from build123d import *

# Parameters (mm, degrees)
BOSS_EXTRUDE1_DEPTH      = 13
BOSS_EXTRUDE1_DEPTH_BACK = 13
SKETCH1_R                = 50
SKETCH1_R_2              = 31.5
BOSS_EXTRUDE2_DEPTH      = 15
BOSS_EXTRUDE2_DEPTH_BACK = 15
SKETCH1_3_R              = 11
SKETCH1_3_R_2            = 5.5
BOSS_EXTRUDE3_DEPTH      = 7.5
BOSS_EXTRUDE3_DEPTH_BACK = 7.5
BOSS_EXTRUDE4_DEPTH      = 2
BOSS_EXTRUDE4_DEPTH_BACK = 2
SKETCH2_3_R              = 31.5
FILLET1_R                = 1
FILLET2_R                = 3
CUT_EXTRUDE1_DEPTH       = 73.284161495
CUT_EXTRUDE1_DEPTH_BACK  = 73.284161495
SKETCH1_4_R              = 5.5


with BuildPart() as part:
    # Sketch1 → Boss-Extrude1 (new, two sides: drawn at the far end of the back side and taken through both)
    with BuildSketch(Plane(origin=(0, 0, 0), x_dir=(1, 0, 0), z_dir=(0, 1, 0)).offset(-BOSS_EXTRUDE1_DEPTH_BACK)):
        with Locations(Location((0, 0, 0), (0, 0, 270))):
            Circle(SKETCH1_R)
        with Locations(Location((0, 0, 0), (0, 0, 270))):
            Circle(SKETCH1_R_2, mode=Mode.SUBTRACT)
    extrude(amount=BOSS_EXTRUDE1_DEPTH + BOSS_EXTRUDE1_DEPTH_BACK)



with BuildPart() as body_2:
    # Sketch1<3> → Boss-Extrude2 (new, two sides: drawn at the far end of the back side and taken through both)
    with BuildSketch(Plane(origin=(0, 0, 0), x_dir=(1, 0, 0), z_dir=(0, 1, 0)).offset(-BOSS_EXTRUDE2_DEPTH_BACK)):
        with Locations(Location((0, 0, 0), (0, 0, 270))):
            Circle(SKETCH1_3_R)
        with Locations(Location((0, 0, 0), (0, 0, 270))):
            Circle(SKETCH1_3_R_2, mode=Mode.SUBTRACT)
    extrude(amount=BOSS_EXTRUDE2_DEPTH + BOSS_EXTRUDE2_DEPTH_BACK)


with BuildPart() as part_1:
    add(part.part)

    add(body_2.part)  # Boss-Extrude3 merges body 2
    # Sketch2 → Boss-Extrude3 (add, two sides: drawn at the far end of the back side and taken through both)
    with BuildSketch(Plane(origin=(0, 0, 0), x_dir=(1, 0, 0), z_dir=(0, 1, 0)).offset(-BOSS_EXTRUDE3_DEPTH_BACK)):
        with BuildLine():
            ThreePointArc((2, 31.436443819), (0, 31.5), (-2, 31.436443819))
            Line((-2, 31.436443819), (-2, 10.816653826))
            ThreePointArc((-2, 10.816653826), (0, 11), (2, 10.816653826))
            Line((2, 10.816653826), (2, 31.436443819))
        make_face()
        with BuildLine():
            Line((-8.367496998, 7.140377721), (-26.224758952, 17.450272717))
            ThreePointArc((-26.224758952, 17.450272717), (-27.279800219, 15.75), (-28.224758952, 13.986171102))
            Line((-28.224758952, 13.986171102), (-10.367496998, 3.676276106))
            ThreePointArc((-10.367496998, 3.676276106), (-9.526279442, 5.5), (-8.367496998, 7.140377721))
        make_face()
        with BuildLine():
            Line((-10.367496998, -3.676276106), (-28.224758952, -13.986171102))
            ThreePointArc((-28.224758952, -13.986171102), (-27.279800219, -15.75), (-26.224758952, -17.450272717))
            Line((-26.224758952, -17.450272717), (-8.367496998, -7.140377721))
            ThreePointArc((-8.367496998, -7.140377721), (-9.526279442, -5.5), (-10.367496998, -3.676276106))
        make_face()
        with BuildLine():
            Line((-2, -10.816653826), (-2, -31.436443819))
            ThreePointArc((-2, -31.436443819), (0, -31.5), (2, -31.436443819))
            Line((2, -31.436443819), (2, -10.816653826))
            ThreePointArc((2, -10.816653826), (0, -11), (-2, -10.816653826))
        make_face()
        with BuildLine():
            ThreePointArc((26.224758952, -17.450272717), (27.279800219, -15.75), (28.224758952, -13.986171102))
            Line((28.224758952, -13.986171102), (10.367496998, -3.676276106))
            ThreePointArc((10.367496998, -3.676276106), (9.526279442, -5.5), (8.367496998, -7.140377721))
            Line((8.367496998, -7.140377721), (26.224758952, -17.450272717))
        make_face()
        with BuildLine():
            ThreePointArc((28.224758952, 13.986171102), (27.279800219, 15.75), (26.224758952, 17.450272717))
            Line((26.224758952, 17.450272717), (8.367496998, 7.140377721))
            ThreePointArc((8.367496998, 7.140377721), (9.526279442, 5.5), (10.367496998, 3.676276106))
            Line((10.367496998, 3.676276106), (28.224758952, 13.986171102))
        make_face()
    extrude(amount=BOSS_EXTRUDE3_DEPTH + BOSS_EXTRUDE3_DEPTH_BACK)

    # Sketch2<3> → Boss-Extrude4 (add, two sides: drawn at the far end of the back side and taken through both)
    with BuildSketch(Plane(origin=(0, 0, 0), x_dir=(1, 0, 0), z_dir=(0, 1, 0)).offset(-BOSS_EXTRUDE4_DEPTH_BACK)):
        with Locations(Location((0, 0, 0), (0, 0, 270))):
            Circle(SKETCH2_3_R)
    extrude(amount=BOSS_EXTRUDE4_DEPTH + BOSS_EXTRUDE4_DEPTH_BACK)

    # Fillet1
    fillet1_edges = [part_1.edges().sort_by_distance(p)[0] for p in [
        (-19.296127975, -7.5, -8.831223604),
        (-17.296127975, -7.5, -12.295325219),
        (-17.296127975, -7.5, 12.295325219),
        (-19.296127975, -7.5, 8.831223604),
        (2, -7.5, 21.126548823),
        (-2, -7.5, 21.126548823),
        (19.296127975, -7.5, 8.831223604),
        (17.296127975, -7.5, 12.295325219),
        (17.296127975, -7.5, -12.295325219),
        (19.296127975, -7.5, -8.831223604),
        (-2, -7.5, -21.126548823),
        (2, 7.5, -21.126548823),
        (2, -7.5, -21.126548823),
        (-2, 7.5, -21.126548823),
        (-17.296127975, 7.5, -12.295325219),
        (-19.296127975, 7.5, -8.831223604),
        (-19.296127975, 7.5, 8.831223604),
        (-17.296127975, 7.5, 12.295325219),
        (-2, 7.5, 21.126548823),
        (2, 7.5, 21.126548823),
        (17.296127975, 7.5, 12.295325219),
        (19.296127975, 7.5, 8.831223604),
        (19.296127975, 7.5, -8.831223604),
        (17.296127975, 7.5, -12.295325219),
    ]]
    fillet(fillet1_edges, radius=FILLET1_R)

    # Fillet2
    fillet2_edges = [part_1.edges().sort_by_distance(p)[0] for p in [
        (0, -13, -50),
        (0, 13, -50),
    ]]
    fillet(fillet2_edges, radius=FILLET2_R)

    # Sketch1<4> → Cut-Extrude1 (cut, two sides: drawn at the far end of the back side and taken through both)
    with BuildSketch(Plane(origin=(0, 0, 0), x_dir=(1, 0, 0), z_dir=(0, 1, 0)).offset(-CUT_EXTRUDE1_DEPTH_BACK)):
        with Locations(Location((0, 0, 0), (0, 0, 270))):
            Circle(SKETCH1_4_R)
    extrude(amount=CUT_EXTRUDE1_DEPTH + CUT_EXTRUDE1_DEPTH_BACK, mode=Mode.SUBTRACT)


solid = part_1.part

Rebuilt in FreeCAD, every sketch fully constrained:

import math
import FreeCAD as App
import Part
import Sketcher
Q = App.Units.Quantity


def edges_at(feature, points):
    """Names of the edges that pass closest to the given points."""
    edges = feature.Shape.Edges
    near = lambda p: min(range(len(edges)), key=lambda i: edges[i].distToShape(Part.Vertex(*p))[0])
    return sorted({f"Edge{near(p) + 1}" for p in points})

doc = App.newDocument("Part")
body = doc.addObject("PartDesign::Body", "Body")

# Sketch on XZ plane
sketch1 = body.newObject("Sketcher::SketchObject", "Sketch")
sketch1.AttachmentSupport = (doc.getObject("XZ_Plane"), [""])
sketch1.MapMode = "FlatFace"
sketch1.addGeometry(Part.Circle(App.Vector(0, 0, 0), App.Vector(0, 0, 1), 50), False)
sketch1.addGeometry(Part.Circle(App.Vector(0, 0, 0), App.Vector(0, 0, 1), 32), False)
sketch1.addConstraint(Sketcher.Constraint("Coincident", 0, 3, -1, 1))
sketch1.addConstraint(Sketcher.Constraint("Coincident", 1, 3, -1, 1))
sketch1.addConstraint(Sketcher.Constraint("Diameter", 0, Q("100 mm")))
sketch1.addConstraint(Sketcher.Constraint("Diameter", 1, Q("63 mm")))
pad1 = body.newObject("PartDesign::Pad", "Pad")
pad1.Profile = sketch1
pad1.Type = "TwoLengths"
pad1.Length = 13
pad1.Length2 = 13
pad1.Reversed = True
body2 = doc.addObject("PartDesign::Body", "Body001")

# Sketch on XZ plane
sketch2 = body2.newObject("Sketcher::SketchObject", "Sketch001")
sketch2.AttachmentSupport = (doc.getObject("XZ_Plane001"), [""])
sketch2.MapMode = "FlatFace"
sketch2.addGeometry(Part.Circle(App.Vector(0, 0, 0), App.Vector(0, 0, 1), 11), False)
sketch2.addGeometry(Part.Circle(App.Vector(0, 0, 0), App.Vector(0, 0, 1), 6), False)
sketch2.addConstraint(Sketcher.Constraint("Coincident", 0, 3, -1, 1))
sketch2.addConstraint(Sketcher.Constraint("Coincident", 1, 3, -1, 1))
sketch2.addConstraint(Sketcher.Constraint("Diameter", 0, Q("22 mm")))
sketch2.addConstraint(Sketcher.Constraint("Diameter", 1, Q("11 mm")))
pad2 = body2.newObject("PartDesign::Pad", "Pad001")
pad2.Profile = sketch2
pad2.Type = "TwoLengths"
pad2.Length = 15
pad2.Length2 = 15
pad2.Reversed = True
body.AllowCompound = True
doc.recompute()

boolean = body.newObject("PartDesign::Boolean", "Boolean")
boolean.Type = "Fuse"
boolean.addObjects([body2])

# Sketch on XZ plane
sketch3 = body.newObject("Sketcher::SketchObject", "Sketch002")
sketch3.AttachmentSupport = (doc.getObject("XZ_Plane"), [""])
sketch3.MapMode = "FlatFace"
sketch3.addGeometry(Part.ArcOfCircle(Part.Circle(App.Vector(0, 0, 0), App.Vector(0, 0, 1), 31.5), math.radians(-93.64), math.radians(-86.36)), False)
sketch3.addGeometry(Part.LineSegment(App.Vector(-2, -31.4, 0), App.Vector(-2, -10.8, 0)), False)
sketch3.addGeometry(Part.ArcOfCircle(Part.Circle(App.Vector(0, 0, 0), App.Vector(0, 0, 1), 11), math.radians(-100), math.radians(-80)), False)
sketch3.addGeometry(Part.LineSegment(App.Vector(2, -10.8, 0), App.Vector(2, -31.4, 0)), False)
sketch3.addGeometry(Part.LineSegment(App.Vector(-8.4, -7.1, 0), App.Vector(-26.2, -17.5, 0)), False)
sketch3.addGeometry(Part.ArcOfCircle(Part.Circle(App.Vector(0, 0, 0), App.Vector(0, 0, 1), 31.5), math.radians(-153.64), math.radians(-146.36)), False)
sketch3.addGeometry(Part.LineSegment(App.Vector(-28.2, -14, 0), App.Vector(-10.4, -3.7, 0)), False)
sketch3.addGeometry(Part.ArcOfCircle(Part.Circle(App.Vector(0, 0, 0), App.Vector(0, 0, 1), 11), math.radians(-160), math.radians(-140)), False)
sketch3.addGeometry(Part.LineSegment(App.Vector(-10.4, 3.7, 0), App.Vector(-28.2, 14, 0)), False)
sketch3.addGeometry(Part.ArcOfCircle(Part.Circle(App.Vector(0, 0, 0), App.Vector(0, 0, 1), 31.5), math.radians(146.36), math.radians(153.64)), False)
sketch3.addGeometry(Part.LineSegment(App.Vector(-26.2, 17.5, 0), App.Vector(-8.4, 7.1, 0)), False)
sketch3.addGeometry(Part.ArcOfCircle(Part.Circle(App.Vector(0, 0, 0), App.Vector(0, 0, 1), 11), math.radians(140), math.radians(160)), False)
sketch3.addGeometry(Part.LineSegment(App.Vector(-2, 10.8, 0), App.Vector(-2, 31.4, 0)), False)
sketch3.addGeometry(Part.ArcOfCircle(Part.Circle(App.Vector(0, 0, 0), App.Vector(0, 0, 1), 31.5), math.radians(86.36), math.radians(93.64)), False)
sketch3.addGeometry(Part.LineSegment(App.Vector(2, 31.4, 0), App.Vector(2, 10.8, 0)), False)
sketch3.addGeometry(Part.ArcOfCircle(Part.Circle(App.Vector(0, 0, 0), App.Vector(0, 0, 1), 11), math.radians(80), math.radians(100)), False)
sketch3.addGeometry(Part.ArcOfCircle(Part.Circle(App.Vector(0, 0, 0), App.Vector(0, 0, 1), 31.5), math.radians(26.36), math.radians(33.64)), False)
sketch3.addGeometry(Part.LineSegment(App.Vector(28.2, 14, 0), App.Vector(10.4, 3.7, 0)), False)
sketch3.addGeometry(Part.ArcOfCircle(Part.Circle(App.Vector(0, 0, 0), App.Vector(0, 0, 1), 11), math.radians(20), math.radians(40)), False)
sketch3.addGeometry(Part.LineSegment(App.Vector(8.4, 7.1, 0), App.Vector(26.2, 17.5, 0)), False)
sketch3.addGeometry(Part.ArcOfCircle(Part.Circle(App.Vector(0, 0, 0), App.Vector(0, 0, 1), 31.5), math.radians(-33.64), math.radians(-26.36)), False)
sketch3.addGeometry(Part.LineSegment(App.Vector(26.2, -17.5, 0), App.Vector(8.4, -7.1, 0)), False)
sketch3.addGeometry(Part.ArcOfCircle(Part.Circle(App.Vector(0, 0, 0), App.Vector(0, 0, 1), 11), math.radians(-40), math.radians(-20)), False)
sketch3.addGeometry(Part.LineSegment(App.Vector(10.4, -3.7, 0), App.Vector(28.2, -14, 0)), False)
sketch3.addConstraint(Sketcher.Constraint("Coincident", 0, 1, 1, 1))
sketch3.addConstraint(Sketcher.Constraint("Coincident", 1, 2, 2, 1))
sketch3.addConstraint(Sketcher.Constraint("Coincident", 2, 2, 3, 1))
sketch3.addConstraint(Sketcher.Constraint("Coincident", 3, 2, 0, 2))
sketch3.addConstraint(Sketcher.Constraint("Coincident", 4, 2, 5, 2))
sketch3.addConstraint(Sketcher.Constraint("Coincident", 5, 1, 6, 1))
sketch3.addConstraint(Sketcher.Constraint("Coincident", 6, 2, 7, 1))
sketch3.addConstraint(Sketcher.Constraint("Coincident", 7, 2, 4, 1))
sketch3.addConstraint(Sketcher.Constraint("Coincident", 8, 2, 9, 2))
sketch3.addConstraint(Sketcher.Constraint("Coincident", 9, 1, 10, 1))
sketch3.addConstraint(Sketcher.Constraint("Coincident", 10, 2, 11, 1))
sketch3.addConstraint(Sketcher.Constraint("Coincident", 11, 2, 8, 1))
sketch3.addConstraint(Sketcher.Constraint("Coincident", 12, 2, 13, 2))
sketch3.addConstraint(Sketcher.Constraint("Coincident", 13, 1, 14, 1))
sketch3.addConstraint(Sketcher.Constraint("Coincident", 14, 2, 15, 1))
sketch3.addConstraint(Sketcher.Constraint("Coincident", 15, 2, 12, 1))
sketch3.addConstraint(Sketcher.Constraint("Coincident", 16, 1, 17, 1))
sketch3.addConstraint(Sketcher.Constraint("Coincident", 17, 2, 18, 1))
sketch3.addConstraint(Sketcher.Constraint("Coincident", 18, 2, 19, 1))
sketch3.addConstraint(Sketcher.Constraint("Coincident", 19, 2, 16, 2))
sketch3.addConstraint(Sketcher.Constraint("Coincident", 20, 1, 21, 1))
sketch3.addConstraint(Sketcher.Constraint("Coincident", 21, 2, 22, 1))
sketch3.addConstraint(Sketcher.Constraint("Coincident", 22, 2, 23, 1))
sketch3.addConstraint(Sketcher.Constraint("Coincident", 23, 2, 20, 2))
sketch3.addConstraint(Sketcher.Constraint("Vertical", 1))
sketch3.addConstraint(Sketcher.Constraint("Vertical", 3))
sketch3.addConstraint(Sketcher.Constraint("Vertical", 12))
sketch3.addConstraint(Sketcher.Constraint("Vertical", 14))
sketch3.addConstraint(Sketcher.Constraint("Coincident", 0, 3, -1, 1))
sketch3.addConstraint(Sketcher.Constraint("Coincident", 2, 3, -1, 1))
sketch3.addConstraint(Sketcher.Constraint("Coincident", 5, 3, -1, 1))
sketch3.addConstraint(Sketcher.Constraint("Coincident", 7, 3, -1, 1))
sketch3.addConstraint(Sketcher.Constraint("Coincident", 9, 3, -1, 1))
sketch3.addConstraint(Sketcher.Constraint("Coincident", 11, 3, -1, 1))
sketch3.addConstraint(Sketcher.Constraint("Coincident", 13, 3, -1, 1))
sketch3.addConstraint(Sketcher.Constraint("Coincident", 15, 3, -1, 1))
sketch3.addConstraint(Sketcher.Constraint("Coincident", 16, 3, -1, 1))
sketch3.addConstraint(Sketcher.Constraint("Coincident", 18, 3, -1, 1))
sketch3.addConstraint(Sketcher.Constraint("Coincident", 20, 3, -1, 1))
sketch3.addConstraint(Sketcher.Constraint("Coincident", 22, 3, -1, 1))
sketch3.addConstraint(Sketcher.Constraint("Equal", 0, 5))
sketch3.addConstraint(Sketcher.Constraint("Equal", 2, 7))
sketch3.addConstraint(Sketcher.Constraint("Equal", 5, 9))
sketch3.addConstraint(Sketcher.Constraint("Equal", 7, 11))
sketch3.addConstraint(Sketcher.Constraint("Equal", 9, 13))
sketch3.addConstraint(Sketcher.Constraint("Equal", 11, 15))
sketch3.addConstraint(Sketcher.Constraint("Equal", 13, 16))
sketch3.addConstraint(Sketcher.Constraint("Equal", 15, 18))
sketch3.addConstraint(Sketcher.Constraint("Equal", 16, 20))
sketch3.addConstraint(Sketcher.Constraint("Equal", 18, 22))
sketch3.addConstraint(Sketcher.Constraint("Parallel", 4, 6))
sketch3.addConstraint(Sketcher.Constraint("Parallel", 8, 10))
sketch3.addConstraint(Sketcher.Constraint("Parallel", 6, 17))
sketch3.addConstraint(Sketcher.Constraint("Parallel", 17, 19))
sketch3.addConstraint(Sketcher.Constraint("Parallel", 10, 21))
sketch3.addConstraint(Sketcher.Constraint("Parallel", 21, 23))
sketch3.addConstraint(Sketcher.Constraint("Horizontal", 1, 2, 2, 2))
sketch3.addConstraint(Sketcher.Constraint("Horizontal", 12, 2, 13, 1))
sketch3.addConstraint(Sketcher.Constraint("Horizontal", 8, 2, 16, 1))
sketch3.addConstraint(Sketcher.Constraint("Horizontal", 11, 2, 17, 2))
sketch3.addConstraint(Sketcher.Constraint("Horizontal", 10, 2, 18, 2))
sketch3.addConstraint(Sketcher.Constraint("Horizontal", 4, 2, 20, 1))
sketch3.addConstraint(Sketcher.Constraint("Horizontal", 6, 2, 22, 2))
sketch3.addConstraint(Sketcher.Constraint("Vertical", 5, 1, 8, 2))
sketch3.addConstraint(Sketcher.Constraint("Vertical", 4, 2, 9, 1))
sketch3.addConstraint(Sketcher.Constraint("Vertical", 1, 2, 12, 2))
sketch3.addConstraint(Sketcher.Constraint("Equal", 4, 6))
sketch3.addConstraint(Sketcher.Constraint("Radius", 2, Q("11 mm")))
sketch3.addConstraint(Sketcher.Constraint("Radius", 0, Q("31.5 mm")))
sketch3.addConstraint(Sketcher.Constraint("Angle", 4, Q("-150 deg")))
sketch3.addConstraint(Sketcher.Constraint("DistanceX", 0, 1, -1, 1, Q("2 mm")))
sketch3.addConstraint(Sketcher.Constraint("DistanceX", 5, 1, 4, 2, Q("2 mm")))
pad3 = body.newObject("PartDesign::Pad", "Pad002")
pad3.Profile = sketch3
pad3.Type = "TwoLengths"
pad3.Length = 7.5
pad3.Length2 = 7.5
pad3.Reversed = True

# Sketch on XZ plane
sketch4 = body.newObject("Sketcher::SketchObject", "Sketch003")
sketch4.AttachmentSupport = (doc.getObject("XZ_Plane"), [""])
sketch4.MapMode = "FlatFace"
sketch4.addGeometry(Part.Circle(App.Vector(0, 0, 0), App.Vector(0, 0, 1), 32), False)
sketch4.addConstraint(Sketcher.Constraint("Coincident", 0, 3, -1, 1))
sketch4.addConstraint(Sketcher.Constraint("Diameter", 0, Q("63 mm")))
pad4 = body.newObject("PartDesign::Pad", "Pad003")
pad4.Profile = sketch4
pad4.Type = "TwoLengths"
pad4.Length = 2
pad4.Length2 = 2
pad4.Reversed = True
doc.recompute()

fillet = body.newObject("PartDesign::Fillet", "Fillet")
fillet.Base = (pad4, edges_at(pad4, [
    (-19.296, -7.5, -8.831),
    (-17.296, -7.5, -12.295),
    (-17.296, -7.5, 12.295),
    (-19.296, -7.5, 8.831),
    (2, -7.5, 21.127),
    (-2, -7.5, 21.127),
    (19.296, -7.5, 8.831),
    (17.296, -7.5, 12.295),
    (17.296, -7.5, -12.295),
    (19.296, -7.5, -8.831),
    (-2, -7.5, -21.127),
    (2, 7.5, -21.127),
    (2, -7.5, -21.127),
    (-2, 7.5, -21.127),
    (-17.296, 7.5, -12.295),
    (-19.296, 7.5, -8.831),
    (-19.296, 7.5, 8.831),
    (-17.296, 7.5, 12.295),
    (-2, 7.5, 21.127),
    (2, 7.5, 21.127),
    (17.296, 7.5, 12.295),
    (19.296, 7.5, 8.831),
    (19.296, 7.5, -8.831),
    (17.296, 7.5, -12.295),
]))
fillet.Radius = 1
doc.recompute()

fillet2 = body.newObject("PartDesign::Fillet", "Fillet001")
fillet2.Base = (fillet, edges_at(fillet, [(0, -13, -50), (0, 13, -50)]))
fillet2.Radius = 3

# Sketch on XZ plane
sketch5 = body.newObject("Sketcher::SketchObject", "Sketch004")
sketch5.AttachmentSupport = (doc.getObject("XZ_Plane"), [""])
sketch5.MapMode = "FlatFace"
sketch5.addGeometry(Part.Circle(App.Vector(0, 0, 0), App.Vector(0, 0, 1), 6), False)
sketch5.addConstraint(Sketcher.Constraint("Coincident", 0, 3, -1, 1))
sketch5.addConstraint(Sketcher.Constraint("Diameter", 0, Q("11 mm")))
pocket1 = body.newObject("PartDesign::Pocket", "Pocket")
pocket1.Profile = sketch5
pocket1.Type = "ThroughAll"
pocket1.Midplane = True

doc.recompute()
